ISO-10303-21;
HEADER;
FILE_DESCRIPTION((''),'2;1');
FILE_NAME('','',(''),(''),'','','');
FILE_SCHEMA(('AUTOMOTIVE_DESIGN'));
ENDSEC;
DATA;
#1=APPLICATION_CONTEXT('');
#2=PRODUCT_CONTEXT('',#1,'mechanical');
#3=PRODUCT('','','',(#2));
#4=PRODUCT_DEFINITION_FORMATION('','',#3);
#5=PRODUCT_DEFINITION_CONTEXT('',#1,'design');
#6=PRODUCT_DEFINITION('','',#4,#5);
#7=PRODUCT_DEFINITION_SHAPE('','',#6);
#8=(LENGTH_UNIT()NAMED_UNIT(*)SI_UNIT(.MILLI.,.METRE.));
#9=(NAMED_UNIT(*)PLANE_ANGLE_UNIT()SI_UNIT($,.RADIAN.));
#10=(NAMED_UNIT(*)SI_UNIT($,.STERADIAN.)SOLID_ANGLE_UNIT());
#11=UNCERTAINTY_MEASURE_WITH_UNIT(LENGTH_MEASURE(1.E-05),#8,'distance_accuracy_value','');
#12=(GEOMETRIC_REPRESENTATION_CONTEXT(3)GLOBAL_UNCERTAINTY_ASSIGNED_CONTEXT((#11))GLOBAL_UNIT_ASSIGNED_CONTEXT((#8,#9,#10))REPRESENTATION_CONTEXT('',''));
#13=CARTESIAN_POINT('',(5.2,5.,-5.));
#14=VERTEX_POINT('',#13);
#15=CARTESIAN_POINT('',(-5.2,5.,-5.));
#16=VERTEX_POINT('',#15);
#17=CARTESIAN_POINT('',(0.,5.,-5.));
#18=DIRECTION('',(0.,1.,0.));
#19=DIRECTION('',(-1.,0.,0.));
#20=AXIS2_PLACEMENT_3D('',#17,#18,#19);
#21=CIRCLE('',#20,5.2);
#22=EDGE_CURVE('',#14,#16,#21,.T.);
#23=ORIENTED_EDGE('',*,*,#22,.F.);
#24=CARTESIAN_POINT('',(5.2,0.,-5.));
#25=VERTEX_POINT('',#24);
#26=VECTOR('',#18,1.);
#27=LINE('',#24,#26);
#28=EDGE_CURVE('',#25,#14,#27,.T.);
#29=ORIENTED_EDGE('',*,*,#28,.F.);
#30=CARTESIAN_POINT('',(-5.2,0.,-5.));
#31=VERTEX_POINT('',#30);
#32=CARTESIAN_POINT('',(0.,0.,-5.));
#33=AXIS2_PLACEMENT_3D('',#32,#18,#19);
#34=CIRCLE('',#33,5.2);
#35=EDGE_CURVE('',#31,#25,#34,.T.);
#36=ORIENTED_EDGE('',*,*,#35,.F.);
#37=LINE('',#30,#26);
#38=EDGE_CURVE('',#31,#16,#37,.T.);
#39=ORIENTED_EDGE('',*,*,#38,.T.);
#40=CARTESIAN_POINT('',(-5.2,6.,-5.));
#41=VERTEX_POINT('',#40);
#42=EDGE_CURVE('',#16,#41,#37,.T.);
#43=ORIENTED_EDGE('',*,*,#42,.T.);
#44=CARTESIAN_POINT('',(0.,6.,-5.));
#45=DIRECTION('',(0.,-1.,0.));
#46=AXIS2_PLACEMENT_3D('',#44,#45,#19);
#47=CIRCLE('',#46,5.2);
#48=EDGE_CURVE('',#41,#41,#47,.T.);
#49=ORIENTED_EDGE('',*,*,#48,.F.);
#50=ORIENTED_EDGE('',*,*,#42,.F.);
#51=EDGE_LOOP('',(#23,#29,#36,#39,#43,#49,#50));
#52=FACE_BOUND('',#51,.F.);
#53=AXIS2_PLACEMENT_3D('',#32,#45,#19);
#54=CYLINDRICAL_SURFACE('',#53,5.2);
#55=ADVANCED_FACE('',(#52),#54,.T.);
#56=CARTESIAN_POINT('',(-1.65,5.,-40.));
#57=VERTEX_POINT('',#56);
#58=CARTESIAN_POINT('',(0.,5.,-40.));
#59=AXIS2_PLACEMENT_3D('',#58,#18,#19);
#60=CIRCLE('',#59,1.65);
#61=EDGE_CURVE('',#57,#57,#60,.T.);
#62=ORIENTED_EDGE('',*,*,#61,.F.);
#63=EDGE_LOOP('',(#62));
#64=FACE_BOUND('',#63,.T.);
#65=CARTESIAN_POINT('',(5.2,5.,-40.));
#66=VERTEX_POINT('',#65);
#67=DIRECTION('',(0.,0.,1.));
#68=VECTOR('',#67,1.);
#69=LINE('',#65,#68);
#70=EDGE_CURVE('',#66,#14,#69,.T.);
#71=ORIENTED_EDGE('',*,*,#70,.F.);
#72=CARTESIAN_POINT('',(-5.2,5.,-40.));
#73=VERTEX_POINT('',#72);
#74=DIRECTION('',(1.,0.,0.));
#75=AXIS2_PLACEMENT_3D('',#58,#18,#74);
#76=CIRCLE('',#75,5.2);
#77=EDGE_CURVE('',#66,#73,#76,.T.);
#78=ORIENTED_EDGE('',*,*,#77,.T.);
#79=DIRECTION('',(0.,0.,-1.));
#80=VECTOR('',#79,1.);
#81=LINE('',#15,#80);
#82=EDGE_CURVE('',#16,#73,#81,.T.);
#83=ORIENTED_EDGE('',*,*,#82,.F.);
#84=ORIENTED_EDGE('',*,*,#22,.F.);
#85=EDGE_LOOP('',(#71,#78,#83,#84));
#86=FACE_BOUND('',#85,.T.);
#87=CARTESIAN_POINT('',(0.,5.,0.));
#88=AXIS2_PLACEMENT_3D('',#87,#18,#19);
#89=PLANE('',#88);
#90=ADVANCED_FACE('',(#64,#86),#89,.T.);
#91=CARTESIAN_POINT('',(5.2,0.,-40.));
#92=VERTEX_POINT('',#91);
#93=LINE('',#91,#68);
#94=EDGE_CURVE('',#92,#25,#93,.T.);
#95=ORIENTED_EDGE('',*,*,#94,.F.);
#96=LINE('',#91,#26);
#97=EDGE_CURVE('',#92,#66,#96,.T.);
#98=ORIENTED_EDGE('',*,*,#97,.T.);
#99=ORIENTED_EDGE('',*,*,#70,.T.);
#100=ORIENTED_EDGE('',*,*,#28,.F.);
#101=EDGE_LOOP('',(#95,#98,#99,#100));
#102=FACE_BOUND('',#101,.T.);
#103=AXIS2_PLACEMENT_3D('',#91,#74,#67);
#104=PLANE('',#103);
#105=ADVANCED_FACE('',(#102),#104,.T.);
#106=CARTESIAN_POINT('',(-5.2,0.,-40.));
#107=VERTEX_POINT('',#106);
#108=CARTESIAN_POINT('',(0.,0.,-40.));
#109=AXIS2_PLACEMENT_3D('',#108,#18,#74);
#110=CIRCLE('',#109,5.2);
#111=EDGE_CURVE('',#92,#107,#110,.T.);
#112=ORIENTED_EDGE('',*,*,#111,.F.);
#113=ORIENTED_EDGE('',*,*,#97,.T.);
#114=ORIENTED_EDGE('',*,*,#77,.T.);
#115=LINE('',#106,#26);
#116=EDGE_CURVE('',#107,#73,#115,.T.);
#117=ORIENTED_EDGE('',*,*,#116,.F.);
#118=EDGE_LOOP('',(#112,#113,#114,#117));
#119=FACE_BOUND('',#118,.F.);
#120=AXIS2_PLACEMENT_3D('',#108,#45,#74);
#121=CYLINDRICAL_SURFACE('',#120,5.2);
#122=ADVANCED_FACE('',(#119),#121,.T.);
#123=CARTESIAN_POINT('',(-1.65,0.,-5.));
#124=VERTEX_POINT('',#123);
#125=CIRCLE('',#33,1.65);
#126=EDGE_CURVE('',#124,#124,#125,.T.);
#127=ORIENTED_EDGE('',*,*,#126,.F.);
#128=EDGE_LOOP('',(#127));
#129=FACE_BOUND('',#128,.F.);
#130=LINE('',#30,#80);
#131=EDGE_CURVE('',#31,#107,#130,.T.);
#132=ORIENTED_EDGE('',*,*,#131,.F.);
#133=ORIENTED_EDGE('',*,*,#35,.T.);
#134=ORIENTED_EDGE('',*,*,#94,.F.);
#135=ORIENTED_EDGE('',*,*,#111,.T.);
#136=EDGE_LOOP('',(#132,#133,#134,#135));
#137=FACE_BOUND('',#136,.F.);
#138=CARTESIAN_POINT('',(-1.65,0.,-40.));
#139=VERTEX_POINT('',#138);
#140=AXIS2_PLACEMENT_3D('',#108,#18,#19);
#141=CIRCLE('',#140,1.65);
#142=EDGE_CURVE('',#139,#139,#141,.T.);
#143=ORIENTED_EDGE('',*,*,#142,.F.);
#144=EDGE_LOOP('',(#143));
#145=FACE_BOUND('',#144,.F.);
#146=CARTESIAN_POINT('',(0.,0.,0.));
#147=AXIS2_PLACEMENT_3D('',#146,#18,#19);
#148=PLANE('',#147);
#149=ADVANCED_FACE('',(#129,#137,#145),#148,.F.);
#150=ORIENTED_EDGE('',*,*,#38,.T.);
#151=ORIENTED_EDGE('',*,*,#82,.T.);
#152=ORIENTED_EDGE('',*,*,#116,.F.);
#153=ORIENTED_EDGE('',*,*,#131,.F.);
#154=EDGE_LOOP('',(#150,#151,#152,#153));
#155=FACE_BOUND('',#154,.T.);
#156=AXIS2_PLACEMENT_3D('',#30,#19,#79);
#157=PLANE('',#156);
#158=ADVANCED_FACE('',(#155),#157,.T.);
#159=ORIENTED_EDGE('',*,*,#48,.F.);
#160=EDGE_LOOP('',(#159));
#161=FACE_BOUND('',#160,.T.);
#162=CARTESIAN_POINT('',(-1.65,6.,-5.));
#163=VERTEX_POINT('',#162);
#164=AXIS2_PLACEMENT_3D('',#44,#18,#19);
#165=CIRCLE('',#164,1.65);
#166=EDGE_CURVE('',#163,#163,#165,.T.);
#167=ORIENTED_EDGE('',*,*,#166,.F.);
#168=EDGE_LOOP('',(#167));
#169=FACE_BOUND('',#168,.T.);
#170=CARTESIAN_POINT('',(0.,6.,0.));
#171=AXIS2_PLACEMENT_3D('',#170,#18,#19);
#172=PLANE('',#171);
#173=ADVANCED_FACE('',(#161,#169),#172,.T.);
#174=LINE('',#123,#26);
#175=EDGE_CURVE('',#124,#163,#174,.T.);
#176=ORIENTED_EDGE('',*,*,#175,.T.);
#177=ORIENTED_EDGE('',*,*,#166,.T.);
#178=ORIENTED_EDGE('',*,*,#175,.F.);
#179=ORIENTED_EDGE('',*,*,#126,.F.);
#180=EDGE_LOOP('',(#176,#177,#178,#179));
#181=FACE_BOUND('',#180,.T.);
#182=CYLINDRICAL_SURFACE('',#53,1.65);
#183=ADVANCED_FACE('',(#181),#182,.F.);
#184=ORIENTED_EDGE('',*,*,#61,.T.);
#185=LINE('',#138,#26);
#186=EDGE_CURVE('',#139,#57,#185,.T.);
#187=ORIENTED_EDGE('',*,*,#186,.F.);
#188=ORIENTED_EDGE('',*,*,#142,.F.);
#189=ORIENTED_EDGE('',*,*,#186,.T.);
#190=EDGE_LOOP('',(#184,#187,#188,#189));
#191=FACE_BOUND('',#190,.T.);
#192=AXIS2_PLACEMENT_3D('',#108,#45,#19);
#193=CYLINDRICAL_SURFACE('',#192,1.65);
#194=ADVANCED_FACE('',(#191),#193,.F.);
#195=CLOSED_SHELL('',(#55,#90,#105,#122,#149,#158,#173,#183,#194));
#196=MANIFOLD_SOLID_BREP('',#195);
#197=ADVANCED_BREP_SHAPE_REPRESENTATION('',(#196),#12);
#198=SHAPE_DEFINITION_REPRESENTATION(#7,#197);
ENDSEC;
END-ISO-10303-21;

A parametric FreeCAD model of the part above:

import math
import FreeCAD as App
import Part
import Sketcher

V = App.Vector
Q = App.Units.Quantity

doc = App.newDocument("Part")
body = doc.addObject("PartDesign::Body", "Body")

sketch1 = body.newObject("Sketcher::SketchObject", "Sketch")
sketch1.AttachmentSupport = (doc.getObject("XZ_Plane"), [""])
sketch1.MapMode = "FlatFace"
sketch1.addGeometry([
    Part.LineSegment(V(5.2, -5, 0), V(5.2, -40, 0)),
    Part.ArcOfCircle(Part.Circle(V(0, -40, 0), V(0, 0, 1), 5.2), math.radians(180), math.radians(360)),
    Part.LineSegment(V(-5.2, -40, 0), V(-5.2, -5, 0)),
    Part.ArcOfCircle(Part.Circle(V(0, -5, 0), V(0, 0, 1), 5.2), math.radians(180), math.radians(360)),
    Part.Circle(V(0, -40, 0), V(0, 0, 1), 1.6),
], False)
sketch1.addConstraint([
    Sketcher.Constraint("Tangent", 0, 2, 1, 2),
    Sketcher.Constraint("Tangent", 1, 1, 2, 1),
    Sketcher.Constraint("Tangent", 2, 2, 3, 1),
    Sketcher.Constraint("Tangent", 3, 2, 0, 1),
    Sketcher.Constraint("Vertical", 0),
    Sketcher.Constraint("Vertical", 2),
    Sketcher.Constraint("Coincident", 4, 3, 1, 3),
    Sketcher.Constraint("PointOnObject", 1, 3, -2),
    Sketcher.Constraint("Diameter", 4, Q("3.3 mm")),
    Sketcher.Constraint("Radius", 1, Q("5.2 mm")),
    Sketcher.Constraint("DistanceY", 0, 2, 0, 1, Q("35 mm")),
    Sketcher.Constraint("DistanceY", 1, 3, -1, 1, Q("40 mm")),
])
pad1 = body.newObject("PartDesign::Pad", "Pad")
pad1.Profile = sketch1
pad1.Length = 5
pad1.Reversed = True

sketch2 = body.newObject("Sketcher::SketchObject", "Sketch001")
sketch2.AttachmentSupport = (doc.getObject("XZ_Plane"), [""])
sketch2.MapMode = "FlatFace"
sketch2.addGeometry([
    Part.Circle(V(0, -5, 0), V(0, 0, 1), 5.2),
    Part.Circle(V(0, -5, 0), V(0, 0, 1), 1.6),
], False)
sketch2.addConstraint([
    Sketcher.Constraint("Coincident", 1, 3, 0, 3),
    Sketcher.Constraint("PointOnObject", 0, 3, -2),
    Sketcher.Constraint("Diameter", 1, Q("3.3 mm")),
    Sketcher.Constraint("Diameter", 0, Q("10.4 mm")),
    Sketcher.Constraint("DistanceY", 0, 3, -1, 1, Q("5 mm")),
])
pad2 = body.newObject("PartDesign::Pad", "Pad001")
pad2.Profile = sketch2
pad2.Length = 6
pad2.Reversed = True

doc.recompute()
